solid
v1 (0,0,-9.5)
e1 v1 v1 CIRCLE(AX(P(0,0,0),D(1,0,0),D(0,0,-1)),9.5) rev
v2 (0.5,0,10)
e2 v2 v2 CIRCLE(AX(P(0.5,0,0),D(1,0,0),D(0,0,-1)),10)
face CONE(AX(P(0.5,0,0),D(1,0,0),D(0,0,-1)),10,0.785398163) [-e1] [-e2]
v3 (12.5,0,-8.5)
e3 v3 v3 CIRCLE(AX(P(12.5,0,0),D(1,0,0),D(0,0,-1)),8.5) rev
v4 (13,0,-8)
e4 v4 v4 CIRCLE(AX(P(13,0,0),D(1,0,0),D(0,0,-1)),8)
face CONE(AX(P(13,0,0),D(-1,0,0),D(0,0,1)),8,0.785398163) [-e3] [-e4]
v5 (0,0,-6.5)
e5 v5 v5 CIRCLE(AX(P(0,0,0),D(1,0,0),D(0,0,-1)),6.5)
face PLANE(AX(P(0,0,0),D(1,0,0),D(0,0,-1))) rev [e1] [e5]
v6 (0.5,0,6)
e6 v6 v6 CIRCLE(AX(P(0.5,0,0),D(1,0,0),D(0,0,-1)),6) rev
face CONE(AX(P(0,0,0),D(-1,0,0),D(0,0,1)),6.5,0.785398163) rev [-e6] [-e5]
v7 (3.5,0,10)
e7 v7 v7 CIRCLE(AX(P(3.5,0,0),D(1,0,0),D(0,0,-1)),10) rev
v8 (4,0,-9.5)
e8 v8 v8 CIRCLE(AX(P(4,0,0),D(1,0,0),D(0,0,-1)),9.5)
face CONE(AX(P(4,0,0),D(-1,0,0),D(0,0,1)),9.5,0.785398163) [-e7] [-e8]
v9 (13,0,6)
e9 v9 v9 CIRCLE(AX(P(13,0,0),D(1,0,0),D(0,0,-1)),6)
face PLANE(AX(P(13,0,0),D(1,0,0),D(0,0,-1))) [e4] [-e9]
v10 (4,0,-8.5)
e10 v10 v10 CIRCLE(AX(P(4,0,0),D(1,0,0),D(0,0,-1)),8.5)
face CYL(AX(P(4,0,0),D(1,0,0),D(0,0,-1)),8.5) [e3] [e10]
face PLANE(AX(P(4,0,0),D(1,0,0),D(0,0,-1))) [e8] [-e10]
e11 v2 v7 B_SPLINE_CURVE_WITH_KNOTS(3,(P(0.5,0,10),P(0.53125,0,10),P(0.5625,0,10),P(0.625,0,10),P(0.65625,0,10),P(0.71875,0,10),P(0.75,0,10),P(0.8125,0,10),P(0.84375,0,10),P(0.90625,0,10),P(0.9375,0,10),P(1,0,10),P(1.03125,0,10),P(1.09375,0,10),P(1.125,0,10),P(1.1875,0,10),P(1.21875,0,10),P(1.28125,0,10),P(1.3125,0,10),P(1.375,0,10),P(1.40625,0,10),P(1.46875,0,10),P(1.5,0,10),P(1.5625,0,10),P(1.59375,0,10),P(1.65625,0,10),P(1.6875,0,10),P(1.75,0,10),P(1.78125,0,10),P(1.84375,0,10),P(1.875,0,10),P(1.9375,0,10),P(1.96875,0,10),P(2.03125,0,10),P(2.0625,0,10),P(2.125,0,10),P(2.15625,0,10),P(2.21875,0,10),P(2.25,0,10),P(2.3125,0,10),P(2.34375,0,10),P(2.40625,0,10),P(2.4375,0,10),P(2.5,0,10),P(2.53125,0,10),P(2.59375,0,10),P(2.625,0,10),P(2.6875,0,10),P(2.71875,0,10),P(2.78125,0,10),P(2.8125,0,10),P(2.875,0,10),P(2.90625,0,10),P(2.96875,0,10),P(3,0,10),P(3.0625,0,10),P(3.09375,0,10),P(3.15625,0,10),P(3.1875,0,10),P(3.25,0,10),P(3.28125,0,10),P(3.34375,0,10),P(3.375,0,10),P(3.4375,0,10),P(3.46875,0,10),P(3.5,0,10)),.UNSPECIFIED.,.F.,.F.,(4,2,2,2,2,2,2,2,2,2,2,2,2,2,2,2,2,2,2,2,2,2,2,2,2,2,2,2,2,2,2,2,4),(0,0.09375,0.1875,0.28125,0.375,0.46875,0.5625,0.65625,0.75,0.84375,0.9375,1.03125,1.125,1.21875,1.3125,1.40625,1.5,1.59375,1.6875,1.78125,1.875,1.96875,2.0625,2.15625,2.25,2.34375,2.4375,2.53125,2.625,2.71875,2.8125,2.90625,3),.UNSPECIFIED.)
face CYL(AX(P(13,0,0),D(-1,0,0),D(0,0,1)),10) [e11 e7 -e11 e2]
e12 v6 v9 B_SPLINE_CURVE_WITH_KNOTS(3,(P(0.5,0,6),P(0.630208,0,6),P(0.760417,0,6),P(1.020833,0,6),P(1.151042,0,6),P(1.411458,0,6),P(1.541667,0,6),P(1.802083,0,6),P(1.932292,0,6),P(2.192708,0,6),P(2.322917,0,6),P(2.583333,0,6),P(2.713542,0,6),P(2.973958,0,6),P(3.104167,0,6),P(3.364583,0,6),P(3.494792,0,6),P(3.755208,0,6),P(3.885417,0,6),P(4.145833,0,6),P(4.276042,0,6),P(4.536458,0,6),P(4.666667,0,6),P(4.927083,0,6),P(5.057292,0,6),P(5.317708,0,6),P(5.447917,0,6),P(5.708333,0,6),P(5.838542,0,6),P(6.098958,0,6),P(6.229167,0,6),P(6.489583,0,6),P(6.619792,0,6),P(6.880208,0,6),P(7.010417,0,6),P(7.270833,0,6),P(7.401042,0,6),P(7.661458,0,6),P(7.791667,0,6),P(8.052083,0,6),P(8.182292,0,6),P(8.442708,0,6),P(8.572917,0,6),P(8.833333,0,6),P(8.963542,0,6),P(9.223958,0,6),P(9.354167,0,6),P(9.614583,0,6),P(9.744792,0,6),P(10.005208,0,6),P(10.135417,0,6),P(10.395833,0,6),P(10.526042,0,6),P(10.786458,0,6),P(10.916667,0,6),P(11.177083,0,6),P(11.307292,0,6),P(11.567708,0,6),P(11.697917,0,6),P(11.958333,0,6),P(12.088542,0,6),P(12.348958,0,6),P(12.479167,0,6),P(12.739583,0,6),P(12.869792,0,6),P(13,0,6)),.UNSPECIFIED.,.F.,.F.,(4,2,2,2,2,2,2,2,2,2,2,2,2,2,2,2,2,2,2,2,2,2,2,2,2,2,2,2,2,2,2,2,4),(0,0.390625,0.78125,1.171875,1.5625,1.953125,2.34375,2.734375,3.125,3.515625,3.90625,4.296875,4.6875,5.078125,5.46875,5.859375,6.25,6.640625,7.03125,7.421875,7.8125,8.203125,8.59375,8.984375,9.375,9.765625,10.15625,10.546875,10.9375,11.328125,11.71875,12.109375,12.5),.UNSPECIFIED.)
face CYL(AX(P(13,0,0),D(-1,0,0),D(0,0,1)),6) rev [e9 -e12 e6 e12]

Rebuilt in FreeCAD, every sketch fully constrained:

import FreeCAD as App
import Part
import Sketcher


def edges_at(feature, points):
    """Names of the edges that pass closest to the given points."""
    edges = feature.Shape.Edges
    near = lambda p: min(range(len(edges)), key=lambda i: edges[i].distToShape(Part.Vertex(*p))[0])
    return sorted({f"Edge{near(p) + 1}" for p in points})


def add_polygon(sketch, points):
    """Adds a closed chain of lines whose ends are joined by coincident constraints."""
    first, n = sketch.GeometryCount, len(points)
    for a, b in zip(points, points[1:] + points[:1]):
        sketch.addGeometry(Part.LineSegment(App.Vector(*a, 0), App.Vector(*b, 0)), False)
    for i in range(n):
        sketch.addConstraint(Sketcher.Constraint("Coincident", first + i, 2, first + (i + 1) % n, 1))

doc = App.newDocument("Part")
body = doc.addObject("PartDesign::Body", "Body")

# Sketch on YZ plane
sketch1 = body.newObject("Sketcher::SketchObject", "Sketch")
sketch1.AttachmentSupport = (doc.getObject("YZ_Plane"), [""])
sketch1.MapMode = "FlatFace"
sketch1.addGeometry(Part.Circle(App.Vector(0, 0, 0), App.Vector(0, 0, 1), 10), False)
sketch1.addGeometry(Part.Circle(App.Vector(0, 0, 0), App.Vector(0, 0, 1), 6), False)
sketch1.addConstraint(Sketcher.Constraint("Coincident", 0, 3, -1, 1))
sketch1.addConstraint(Sketcher.Constraint("Coincident", 1, 3, -1, 1))
sketch1.addConstraint(Sketcher.Constraint("Diameter", 0, 20.0))
sketch1.addConstraint(Sketcher.Constraint("Diameter", 1, 12.0))
pad1 = body.newObject("PartDesign::Pad", "Pad")
pad1.Profile = sketch1
pad1.Length = 13

# Sketch on YZ plane
sketch2 = body.newObject("Sketcher::SketchObject", "Sketch001")
sketch2.AttachmentSupport = (doc.getObject("YZ_Plane"), [""])
sketch2.MapMode = "FlatFace"
sketch2.AttachmentOffset = App.Placement(App.Vector(0, 0, 13), App.Rotation())
add_polygon(sketch2, [(14.113, 14.113), (-14.113, 14.113), (-14.113, -14.113), (14.113, -14.113)])  # lines 0-3
sketch2.addGeometry(Part.Circle(App.Vector(0, 0, 0), App.Vector(0, 0, 1), 8.5), False)  # 4
sketch2.addConstraint(Sketcher.Constraint("Horizontal", 0))
sketch2.addConstraint(Sketcher.Constraint("Vertical", 1))
sketch2.addConstraint(Sketcher.Constraint("Horizontal", 2))
sketch2.addConstraint(Sketcher.Constraint("Vertical", 3))
sketch2.addConstraint(Sketcher.Constraint("Coincident", 4, 3, -1, 1))
sketch2.addConstraint(Sketcher.Constraint("Symmetric", 0, 2, 2, 2, -1, 1))
sketch2.addConstraint(Sketcher.Constraint("Equal", 2, 1))
sketch2.addConstraint(Sketcher.Constraint("Diameter", 4, 17.0))
sketch2.addConstraint(Sketcher.Constraint("DistanceX", 0, 2, 0, 1, 28.226))
pocket1 = body.newObject("PartDesign::Pocket", "Pocket")
pocket1.Profile = sketch2
pocket1.Length = 9
doc.recompute()

chamfer = body.newObject("PartDesign::Chamfer", "Chamfer")
chamfer.Base = (pocket1, edges_at(pocket1, [
    (4, 0, -10),
    (13, 0, 8.5),
    (0, 0, -10),
    (0, 0, -6),
]))
chamfer.Size = 0.5

doc.recompute()
